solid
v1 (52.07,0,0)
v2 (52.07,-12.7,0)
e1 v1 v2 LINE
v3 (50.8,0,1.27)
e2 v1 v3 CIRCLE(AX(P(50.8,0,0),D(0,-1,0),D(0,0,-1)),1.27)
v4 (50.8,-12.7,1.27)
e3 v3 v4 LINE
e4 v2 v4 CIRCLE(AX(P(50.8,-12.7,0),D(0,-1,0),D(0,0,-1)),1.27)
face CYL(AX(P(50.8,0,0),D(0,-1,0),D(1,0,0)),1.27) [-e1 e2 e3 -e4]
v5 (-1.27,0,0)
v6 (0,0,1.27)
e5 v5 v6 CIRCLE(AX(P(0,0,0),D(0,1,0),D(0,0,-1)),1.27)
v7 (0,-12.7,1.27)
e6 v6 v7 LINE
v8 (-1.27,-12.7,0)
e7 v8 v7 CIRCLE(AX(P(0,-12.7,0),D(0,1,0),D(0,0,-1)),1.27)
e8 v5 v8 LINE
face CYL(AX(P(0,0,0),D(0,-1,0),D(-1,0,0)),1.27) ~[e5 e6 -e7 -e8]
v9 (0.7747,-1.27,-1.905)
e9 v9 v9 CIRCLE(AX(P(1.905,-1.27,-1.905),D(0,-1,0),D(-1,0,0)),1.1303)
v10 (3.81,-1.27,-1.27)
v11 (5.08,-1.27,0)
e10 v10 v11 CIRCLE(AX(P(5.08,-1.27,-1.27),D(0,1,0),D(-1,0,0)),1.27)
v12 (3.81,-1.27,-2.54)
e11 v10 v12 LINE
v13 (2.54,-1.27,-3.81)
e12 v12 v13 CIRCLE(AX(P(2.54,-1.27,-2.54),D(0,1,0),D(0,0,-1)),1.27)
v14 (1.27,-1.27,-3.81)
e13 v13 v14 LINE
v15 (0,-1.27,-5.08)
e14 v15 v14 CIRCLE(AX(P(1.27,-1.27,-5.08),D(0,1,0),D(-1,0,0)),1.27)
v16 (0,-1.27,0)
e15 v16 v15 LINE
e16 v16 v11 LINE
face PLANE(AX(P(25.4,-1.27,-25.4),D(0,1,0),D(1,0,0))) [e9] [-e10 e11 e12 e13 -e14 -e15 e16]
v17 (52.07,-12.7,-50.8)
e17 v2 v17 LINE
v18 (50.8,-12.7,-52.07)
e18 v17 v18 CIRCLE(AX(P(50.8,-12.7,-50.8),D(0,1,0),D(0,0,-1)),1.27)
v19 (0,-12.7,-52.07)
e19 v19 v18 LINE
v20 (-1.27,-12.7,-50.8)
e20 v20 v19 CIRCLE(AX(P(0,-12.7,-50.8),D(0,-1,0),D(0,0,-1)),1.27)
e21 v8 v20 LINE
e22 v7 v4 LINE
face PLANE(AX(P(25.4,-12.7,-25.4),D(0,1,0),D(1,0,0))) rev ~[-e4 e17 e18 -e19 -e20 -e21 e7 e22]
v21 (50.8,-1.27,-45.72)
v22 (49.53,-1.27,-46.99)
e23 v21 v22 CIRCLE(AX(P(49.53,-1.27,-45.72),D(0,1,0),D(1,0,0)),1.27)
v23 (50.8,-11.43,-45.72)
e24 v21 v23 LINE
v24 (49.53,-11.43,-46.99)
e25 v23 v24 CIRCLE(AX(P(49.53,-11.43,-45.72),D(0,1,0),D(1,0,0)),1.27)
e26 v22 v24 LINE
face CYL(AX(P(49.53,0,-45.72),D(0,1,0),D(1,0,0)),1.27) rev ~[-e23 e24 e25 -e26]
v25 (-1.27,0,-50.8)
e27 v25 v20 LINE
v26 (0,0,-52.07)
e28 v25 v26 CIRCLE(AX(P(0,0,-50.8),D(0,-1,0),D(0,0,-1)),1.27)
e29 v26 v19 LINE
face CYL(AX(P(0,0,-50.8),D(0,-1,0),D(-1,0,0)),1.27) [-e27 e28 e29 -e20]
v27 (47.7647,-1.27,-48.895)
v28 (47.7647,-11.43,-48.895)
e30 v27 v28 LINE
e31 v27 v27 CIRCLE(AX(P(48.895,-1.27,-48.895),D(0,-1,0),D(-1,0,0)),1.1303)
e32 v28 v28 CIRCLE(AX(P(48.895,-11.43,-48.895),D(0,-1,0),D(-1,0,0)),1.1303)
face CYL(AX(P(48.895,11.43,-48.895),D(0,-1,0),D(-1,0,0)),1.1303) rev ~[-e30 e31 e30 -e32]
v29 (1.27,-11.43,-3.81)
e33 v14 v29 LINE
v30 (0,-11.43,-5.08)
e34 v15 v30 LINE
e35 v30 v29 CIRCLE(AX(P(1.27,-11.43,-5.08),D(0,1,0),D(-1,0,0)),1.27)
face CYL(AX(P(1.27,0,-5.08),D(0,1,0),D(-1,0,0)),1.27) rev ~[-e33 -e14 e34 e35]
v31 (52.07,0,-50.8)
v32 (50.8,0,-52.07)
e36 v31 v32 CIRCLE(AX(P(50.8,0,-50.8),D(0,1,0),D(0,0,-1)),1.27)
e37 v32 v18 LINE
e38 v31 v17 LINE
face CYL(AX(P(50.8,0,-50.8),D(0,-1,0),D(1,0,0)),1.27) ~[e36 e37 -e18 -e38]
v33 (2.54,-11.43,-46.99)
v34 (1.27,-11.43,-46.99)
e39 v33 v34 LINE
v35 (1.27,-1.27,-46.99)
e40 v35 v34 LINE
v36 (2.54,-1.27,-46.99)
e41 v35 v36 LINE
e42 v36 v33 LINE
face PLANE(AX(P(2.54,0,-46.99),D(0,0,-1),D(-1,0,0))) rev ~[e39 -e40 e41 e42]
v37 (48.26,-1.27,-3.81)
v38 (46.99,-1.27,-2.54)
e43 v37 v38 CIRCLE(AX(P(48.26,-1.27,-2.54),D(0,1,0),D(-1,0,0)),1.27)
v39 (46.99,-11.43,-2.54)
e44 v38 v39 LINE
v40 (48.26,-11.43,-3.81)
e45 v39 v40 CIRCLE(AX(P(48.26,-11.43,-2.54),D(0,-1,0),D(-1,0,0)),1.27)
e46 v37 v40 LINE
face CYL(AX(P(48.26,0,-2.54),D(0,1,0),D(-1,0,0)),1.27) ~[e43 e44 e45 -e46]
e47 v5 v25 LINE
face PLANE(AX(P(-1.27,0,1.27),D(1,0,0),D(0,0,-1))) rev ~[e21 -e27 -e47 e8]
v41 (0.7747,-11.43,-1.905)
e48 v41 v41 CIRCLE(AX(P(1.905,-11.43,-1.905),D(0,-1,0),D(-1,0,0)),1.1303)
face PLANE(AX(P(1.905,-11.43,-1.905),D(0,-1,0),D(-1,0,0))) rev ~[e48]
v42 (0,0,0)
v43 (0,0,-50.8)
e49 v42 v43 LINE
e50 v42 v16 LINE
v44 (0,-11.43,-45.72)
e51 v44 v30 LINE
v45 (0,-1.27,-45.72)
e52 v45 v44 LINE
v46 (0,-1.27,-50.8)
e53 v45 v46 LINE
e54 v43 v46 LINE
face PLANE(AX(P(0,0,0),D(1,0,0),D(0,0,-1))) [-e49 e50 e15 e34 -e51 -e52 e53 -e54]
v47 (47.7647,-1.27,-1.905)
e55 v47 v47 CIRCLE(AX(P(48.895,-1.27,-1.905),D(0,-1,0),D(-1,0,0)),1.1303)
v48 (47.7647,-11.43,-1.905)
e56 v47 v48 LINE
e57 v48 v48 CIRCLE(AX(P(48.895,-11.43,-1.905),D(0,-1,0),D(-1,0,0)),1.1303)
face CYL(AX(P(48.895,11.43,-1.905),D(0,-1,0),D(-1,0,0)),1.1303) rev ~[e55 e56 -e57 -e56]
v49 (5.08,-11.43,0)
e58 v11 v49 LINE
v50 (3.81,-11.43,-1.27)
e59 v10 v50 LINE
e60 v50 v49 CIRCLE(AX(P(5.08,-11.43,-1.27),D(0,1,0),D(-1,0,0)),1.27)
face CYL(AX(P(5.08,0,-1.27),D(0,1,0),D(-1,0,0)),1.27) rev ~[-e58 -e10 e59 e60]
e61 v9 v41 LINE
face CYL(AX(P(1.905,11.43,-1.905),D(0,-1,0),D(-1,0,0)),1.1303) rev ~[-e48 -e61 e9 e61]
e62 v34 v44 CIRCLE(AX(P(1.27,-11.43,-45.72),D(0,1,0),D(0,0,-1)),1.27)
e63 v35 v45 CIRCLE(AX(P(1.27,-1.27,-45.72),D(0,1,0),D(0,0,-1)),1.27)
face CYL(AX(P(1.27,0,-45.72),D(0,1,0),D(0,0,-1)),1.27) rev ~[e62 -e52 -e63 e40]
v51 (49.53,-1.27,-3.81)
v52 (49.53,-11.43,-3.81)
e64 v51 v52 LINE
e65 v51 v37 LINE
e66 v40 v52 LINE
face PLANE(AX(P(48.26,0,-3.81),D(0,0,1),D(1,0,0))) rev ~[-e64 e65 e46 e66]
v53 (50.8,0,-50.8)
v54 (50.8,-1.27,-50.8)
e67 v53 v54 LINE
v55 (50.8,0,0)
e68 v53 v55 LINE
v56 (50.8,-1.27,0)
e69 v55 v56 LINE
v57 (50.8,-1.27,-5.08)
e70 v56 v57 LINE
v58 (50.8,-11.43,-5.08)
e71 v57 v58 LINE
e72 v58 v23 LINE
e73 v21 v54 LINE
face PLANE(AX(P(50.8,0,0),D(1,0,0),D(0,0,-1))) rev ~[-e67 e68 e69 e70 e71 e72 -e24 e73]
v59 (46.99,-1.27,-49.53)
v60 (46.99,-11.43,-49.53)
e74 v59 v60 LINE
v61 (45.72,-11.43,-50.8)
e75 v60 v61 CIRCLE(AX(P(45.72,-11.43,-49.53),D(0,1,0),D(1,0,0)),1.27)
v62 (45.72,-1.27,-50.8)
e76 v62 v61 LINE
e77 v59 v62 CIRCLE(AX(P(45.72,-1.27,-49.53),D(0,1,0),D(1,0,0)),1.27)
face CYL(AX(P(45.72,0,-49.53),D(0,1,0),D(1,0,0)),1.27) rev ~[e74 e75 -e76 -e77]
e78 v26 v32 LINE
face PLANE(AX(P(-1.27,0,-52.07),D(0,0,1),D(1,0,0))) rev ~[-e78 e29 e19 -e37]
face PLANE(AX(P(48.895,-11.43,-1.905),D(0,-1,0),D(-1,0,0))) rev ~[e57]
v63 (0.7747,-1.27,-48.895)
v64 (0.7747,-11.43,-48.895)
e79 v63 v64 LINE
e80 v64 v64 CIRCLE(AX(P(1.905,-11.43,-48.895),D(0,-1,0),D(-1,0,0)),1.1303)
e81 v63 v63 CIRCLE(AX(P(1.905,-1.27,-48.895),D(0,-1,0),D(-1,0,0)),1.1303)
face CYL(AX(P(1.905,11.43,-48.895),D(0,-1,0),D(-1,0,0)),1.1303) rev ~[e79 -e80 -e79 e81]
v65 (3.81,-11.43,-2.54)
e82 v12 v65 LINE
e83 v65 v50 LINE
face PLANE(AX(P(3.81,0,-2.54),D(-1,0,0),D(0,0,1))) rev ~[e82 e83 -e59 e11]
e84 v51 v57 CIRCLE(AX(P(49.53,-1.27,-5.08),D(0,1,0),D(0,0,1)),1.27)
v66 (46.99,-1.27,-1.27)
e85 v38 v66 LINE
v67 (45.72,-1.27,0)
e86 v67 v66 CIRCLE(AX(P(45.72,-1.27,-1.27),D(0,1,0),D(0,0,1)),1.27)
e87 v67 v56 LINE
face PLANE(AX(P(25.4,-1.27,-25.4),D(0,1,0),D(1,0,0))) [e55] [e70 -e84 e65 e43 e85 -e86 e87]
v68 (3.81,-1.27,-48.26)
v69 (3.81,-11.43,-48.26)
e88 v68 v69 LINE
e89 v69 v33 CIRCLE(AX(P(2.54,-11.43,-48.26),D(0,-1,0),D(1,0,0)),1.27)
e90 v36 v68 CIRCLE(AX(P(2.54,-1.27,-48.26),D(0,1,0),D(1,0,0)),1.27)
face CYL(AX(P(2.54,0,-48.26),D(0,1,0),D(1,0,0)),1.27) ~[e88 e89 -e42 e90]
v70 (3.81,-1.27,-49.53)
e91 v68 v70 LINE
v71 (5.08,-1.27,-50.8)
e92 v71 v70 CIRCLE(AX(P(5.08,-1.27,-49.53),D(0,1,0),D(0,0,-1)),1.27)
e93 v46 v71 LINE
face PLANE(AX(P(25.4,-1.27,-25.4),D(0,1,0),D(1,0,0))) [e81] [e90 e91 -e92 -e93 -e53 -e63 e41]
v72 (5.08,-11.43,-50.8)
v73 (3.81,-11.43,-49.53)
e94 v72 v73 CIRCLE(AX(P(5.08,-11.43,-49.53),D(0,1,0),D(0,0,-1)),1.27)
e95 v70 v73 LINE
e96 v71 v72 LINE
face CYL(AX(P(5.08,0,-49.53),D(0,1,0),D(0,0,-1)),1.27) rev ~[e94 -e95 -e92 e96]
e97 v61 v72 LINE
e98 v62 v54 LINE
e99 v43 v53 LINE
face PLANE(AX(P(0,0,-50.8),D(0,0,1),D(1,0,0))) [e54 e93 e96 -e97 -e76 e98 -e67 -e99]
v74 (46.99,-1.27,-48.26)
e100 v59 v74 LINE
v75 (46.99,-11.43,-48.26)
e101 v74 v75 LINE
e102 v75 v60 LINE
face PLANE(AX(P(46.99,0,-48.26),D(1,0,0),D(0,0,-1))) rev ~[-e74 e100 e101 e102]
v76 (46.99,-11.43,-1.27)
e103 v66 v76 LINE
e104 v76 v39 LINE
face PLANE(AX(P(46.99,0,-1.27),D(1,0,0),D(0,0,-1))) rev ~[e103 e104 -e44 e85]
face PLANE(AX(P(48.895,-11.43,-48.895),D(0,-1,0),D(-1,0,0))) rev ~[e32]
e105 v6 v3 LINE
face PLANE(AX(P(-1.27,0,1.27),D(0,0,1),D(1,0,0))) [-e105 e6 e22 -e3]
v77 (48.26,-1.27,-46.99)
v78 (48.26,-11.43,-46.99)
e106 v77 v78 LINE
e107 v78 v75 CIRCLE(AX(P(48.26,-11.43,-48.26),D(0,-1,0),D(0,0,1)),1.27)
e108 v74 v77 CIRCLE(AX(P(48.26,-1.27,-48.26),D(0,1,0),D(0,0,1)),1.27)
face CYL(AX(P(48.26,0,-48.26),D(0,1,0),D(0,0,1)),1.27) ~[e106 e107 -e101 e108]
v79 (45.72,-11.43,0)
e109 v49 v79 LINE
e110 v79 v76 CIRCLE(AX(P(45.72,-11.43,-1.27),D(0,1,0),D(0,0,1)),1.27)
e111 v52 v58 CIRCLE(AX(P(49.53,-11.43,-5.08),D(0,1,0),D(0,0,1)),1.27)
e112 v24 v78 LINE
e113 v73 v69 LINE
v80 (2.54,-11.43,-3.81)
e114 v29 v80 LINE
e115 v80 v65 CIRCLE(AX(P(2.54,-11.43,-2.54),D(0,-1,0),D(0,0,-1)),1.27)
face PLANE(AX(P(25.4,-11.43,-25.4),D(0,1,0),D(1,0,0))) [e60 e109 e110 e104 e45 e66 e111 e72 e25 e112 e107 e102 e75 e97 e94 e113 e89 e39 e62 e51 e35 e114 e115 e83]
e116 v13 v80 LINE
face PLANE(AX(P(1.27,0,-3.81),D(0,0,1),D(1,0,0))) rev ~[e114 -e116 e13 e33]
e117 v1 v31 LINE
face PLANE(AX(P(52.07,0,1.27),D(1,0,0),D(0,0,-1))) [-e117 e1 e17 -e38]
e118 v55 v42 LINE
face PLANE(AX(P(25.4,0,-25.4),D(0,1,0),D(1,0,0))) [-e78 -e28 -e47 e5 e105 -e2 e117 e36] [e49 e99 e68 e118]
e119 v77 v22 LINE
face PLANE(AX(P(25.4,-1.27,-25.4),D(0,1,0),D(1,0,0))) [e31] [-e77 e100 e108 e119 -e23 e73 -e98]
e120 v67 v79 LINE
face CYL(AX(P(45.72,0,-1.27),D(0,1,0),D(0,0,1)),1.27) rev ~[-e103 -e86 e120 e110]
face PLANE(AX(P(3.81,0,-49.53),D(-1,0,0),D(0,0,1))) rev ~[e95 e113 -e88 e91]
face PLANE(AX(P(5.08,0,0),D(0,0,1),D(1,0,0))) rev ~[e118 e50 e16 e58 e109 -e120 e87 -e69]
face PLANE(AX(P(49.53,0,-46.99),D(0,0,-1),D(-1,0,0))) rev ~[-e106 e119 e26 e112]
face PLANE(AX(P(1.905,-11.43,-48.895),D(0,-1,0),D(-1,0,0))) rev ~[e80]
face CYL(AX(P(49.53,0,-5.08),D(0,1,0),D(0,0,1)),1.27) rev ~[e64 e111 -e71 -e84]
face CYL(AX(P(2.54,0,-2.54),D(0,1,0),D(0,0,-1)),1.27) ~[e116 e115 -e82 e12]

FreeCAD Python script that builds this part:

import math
import FreeCAD as App
import Part
import Sketcher

V = App.Vector
Q = App.Units.Quantity


def edges_at(feature, points):
    """Names of the edges that pass closest to the given points."""
    edges = feature.Shape.Edges
    near = lambda p: min(range(len(edges)), key=lambda i: edges[i].distToShape(Part.Vertex(*p))[0])
    return sorted({f"Edge{near(p) + 1}" for p in points})


def add_polygon(sketch, points):
    """Adds a closed chain of lines whose ends are joined by coincident constraints."""
    first, n = sketch.GeometryCount, len(points)
    for a, b in zip(points, points[1:] + points[:1]):
        sketch.addGeometry(Part.LineSegment(App.Vector(*a, 0), App.Vector(*b, 0)), False)
    for i in range(n):
        sketch.addConstraint(Sketcher.Constraint("Coincident", first + i, 2, first + (i + 1) % n, 1))

doc = App.newDocument("Part")
body = doc.addObject("PartDesign::Body", "Body")

sketch1 = body.newObject("Sketcher::SketchObject", "Sketch")
sketch1.AttachmentSupport = (doc.getObject("XZ_Plane"), [""])
sketch1.MapMode = "FlatFace"
add_polygon(sketch1, [(-1.27, -52.07), (-1.27, 1.27), (52.07, 1.27), (52.07, -52.07)])
sketch1.addConstraint([
    Sketcher.Constraint("Vertical", 0),
    Sketcher.Constraint("Horizontal", 1),
    Sketcher.Constraint("Vertical", 2),
    Sketcher.Constraint("Horizontal", 3),
    Sketcher.Constraint("Equal", 3, 0),
    Sketcher.Constraint("DistanceX", 1, 1, 1, 2, Q("2.1 in")),
    Sketcher.Constraint("DistanceX", 0, 2, -1, 1, Q("0.05 in")),
    Sketcher.Constraint("DistanceY", -1, 1, 0, 2, Q("0.05 in")),
])
pad1 = body.newObject("PartDesign::Pad", "Pad")
pad1.Profile = sketch1
pad1.Length = Q("0.5 in")

sketch2 = body.newObject("Sketcher::SketchObject", "Sketch001")
sketch2.AttachmentSupport = (doc.getObject("XZ_Plane"), [""])
sketch2.MapMode = "FlatFace"
sketch2.addGeometry([
    Part.LineSegment(V(5.08, 0, 0), V(45.72, 0, 0)),
    Part.ArcOfCircle(Part.Circle(V(45.72, -1.27, 0), V(0, 0, 1), 1.27), math.radians(0), math.radians(90)),
    Part.LineSegment(V(46.99, -1.27, 0), V(46.99, -2.54, 0)),
    Part.ArcOfCircle(Part.Circle(V(48.26, -2.54, 0), V(0, 0, 1), 1.27), math.radians(180), math.radians(270)),
    Part.LineSegment(V(48.26, -3.81, 0), V(49.53, -3.81, 0)),
    Part.ArcOfCircle(Part.Circle(V(49.53, -5.08, 0), V(0, 0, 1), 1.27), math.radians(0), math.radians(90)),
    Part.LineSegment(V(50.8, -5.08, 0), V(50.8, -45.72, 0)),
    Part.ArcOfCircle(Part.Circle(V(49.53, -45.72, 0), V(0, 0, 1), 1.27), math.radians(-90), math.radians(0)),
    Part.LineSegment(V(49.53, -46.99, 0), V(48.26, -46.99, 0)),
    Part.ArcOfCircle(Part.Circle(V(48.26, -48.26, 0), V(0, 0, 1), 1.27), math.radians(90), math.radians(180)),
    Part.LineSegment(V(46.99, -48.26, 0), V(46.99, -49.53, 0)),
    Part.ArcOfCircle(Part.Circle(V(45.72, -49.53, 0), V(0, 0, 1), 1.27), math.radians(-90), math.radians(0)),
    Part.LineSegment(V(45.72, -50.8, 0), V(5.08, -50.8, 0)),
    Part.ArcOfCircle(Part.Circle(V(5.08, -49.53, 0), V(0, 0, 1), 1.27), math.radians(180), math.radians(270)),
    Part.LineSegment(V(3.81, -49.53, 0), V(3.81, -48.26, 0)),
    Part.ArcOfCircle(Part.Circle(V(2.54, -48.26, 0), V(0, 0, 1), 1.27), math.radians(0), math.radians(90)),
    Part.LineSegment(V(2.54, -46.99, 0), V(1.27, -46.99, 0)),
    Part.ArcOfCircle(Part.Circle(V(1.27, -45.72, 0), V(0, 0, 1), 1.27), math.radians(180), math.radians(270)),
    Part.LineSegment(V(0, -45.72, 0), V(0, -5.08, 0)),
    Part.ArcOfCircle(Part.Circle(V(1.27, -5.08, 0), V(0, 0, 1), 1.27), math.radians(90), math.radians(180)),
    Part.LineSegment(V(1.27, -3.81, 0), V(2.54, -3.81, 0)),
    Part.ArcOfCircle(Part.Circle(V(2.54, -2.54, 0), V(0, 0, 1), 1.27), math.radians(-90), math.radians(0)),
    Part.LineSegment(V(3.81, -2.54, 0), V(3.81, -1.27, 0)),
    Part.ArcOfCircle(Part.Circle(V(5.08, -1.27, 0), V(0, 0, 1), 1.27), math.radians(90), math.radians(180)),
], False)
sketch2.addConstraint([
    Sketcher.Constraint("Tangent", 0, 2, 1, 2),
    Sketcher.Constraint("Tangent", 1, 1, 2, 1),
    Sketcher.Constraint("Tangent", 2, 2, 3, 1),
    Sketcher.Constraint("Tangent", 3, 2, 4, 1),
    Sketcher.Constraint("Tangent", 4, 2, 5, 2),
    Sketcher.Constraint("Tangent", 5, 1, 6, 1),
    Sketcher.Constraint("Tangent", 6, 2, 7, 2),
    Sketcher.Constraint("Tangent", 7, 1, 8, 1),
    Sketcher.Constraint("Tangent", 8, 2, 9, 1),
    Sketcher.Constraint("Tangent", 9, 2, 10, 1),
    Sketcher.Constraint("Tangent", 10, 2, 11, 2),
    Sketcher.Constraint("Tangent", 11, 1, 12, 1),
    Sketcher.Constraint("Tangent", 12, 2, 13, 2),
    Sketcher.Constraint("Tangent", 13, 1, 14, 1),
    Sketcher.Constraint("Tangent", 14, 2, 15, 1),
    Sketcher.Constraint("Tangent", 15, 2, 16, 1),
    Sketcher.Constraint("Tangent", 16, 2, 17, 2),
    Sketcher.Constraint("Tangent", 17, 1, 18, 1),
    Sketcher.Constraint("Tangent", 18, 2, 19, 2),
    Sketcher.Constraint("Tangent", 19, 1, 20, 1),
    Sketcher.Constraint("Tangent", 20, 2, 21, 1),
    Sketcher.Constraint("Tangent", 21, 2, 22, 1),
    Sketcher.Constraint("Tangent", 22, 2, 23, 2),
    Sketcher.Constraint("Tangent", 23, 1, 0, 1),
    Sketcher.Constraint("Horizontal", 0),
    Sketcher.Constraint("Vertical", 2),
    Sketcher.Constraint("Horizontal", 4),
    Sketcher.Constraint("Vertical", 6),
    Sketcher.Constraint("Horizontal", 8),
    Sketcher.Constraint("Vertical", 10),
    Sketcher.Constraint("Horizontal", 12),
    Sketcher.Constraint("Vertical", 14),
    Sketcher.Constraint("Horizontal", 16),
    Sketcher.Constraint("Vertical", 18),
    Sketcher.Constraint("Horizontal", 20),
    Sketcher.Constraint("Vertical", 22),
    Sketcher.Constraint("Equal", 1, 3),
    Sketcher.Constraint("Equal", 3, 5),
    Sketcher.Constraint("Equal", 5, 7),
    Sketcher.Constraint("Equal", 7, 9),
    Sketcher.Constraint("Equal", 9, 11),
    Sketcher.Constraint("Equal", 11, 13),
    Sketcher.Constraint("Equal", 13, 15),
    Sketcher.Constraint("Equal", 15, 17),
    Sketcher.Constraint("Equal", 17, 19),
    Sketcher.Constraint("Equal", 19, 21),
    Sketcher.Constraint("Equal", 21, 23),
    Sketcher.Constraint("PointOnObject", 0, 2, -1),
    Sketcher.Constraint("PointOnObject", 17, 1, -2),
    Sketcher.Constraint("Horizontal", 9, 3, 15, 3),
    Sketcher.Constraint("Horizontal", 5, 3, 19, 3),
    Sketcher.Constraint("Vertical", 3, 3, 9, 3),
    Sketcher.Constraint("Vertical", 15, 3, 21, 3),
    Sketcher.Constraint("Equal", 8, 16),
    Sketcher.Constraint("Equal", 20, 2),
    Sketcher.Constraint("Equal", 12, 6),
    Sketcher.Constraint("Equal", 2, 10),
    Sketcher.Constraint("Radius", 1, Q("0.05 in")),
    Sketcher.Constraint("DistanceX", 0, 1, 0, 2, Q("1.6 in")),
    Sketcher.Constraint("DistanceX", -1, 1, 5, 1, Q("2 in")),
])
pocket1 = body.newObject("PartDesign::Pocket", "Pocket")
pocket1.Profile = sketch2
pocket1.Length = Q("0.45 in")
pocket1.Reversed = True

sketch3 = body.newObject("Sketcher::SketchObject", "Sketch002")
sketch3.AttachmentSupport = (doc.getObject("XZ_Plane"), [""])
sketch3.MapMode = "FlatFace"
sketch3.addGeometry([
    Part.Circle(V(1.905, -48.895, 0), V(0, 0, 1), 1.1303),
    Part.Circle(V(48.895, -48.895, 0), V(0, 0, 1), 1.1303),
    Part.Circle(V(1.905, -1.905, 0), V(0, 0, 1), 1.1303),
    Part.Circle(V(48.895, -1.905, 0), V(0, 0, 1), 1.1303),
], False)
sketch3.addConstraint([
    Sketcher.Constraint("Equal", 0, 1),
    Sketcher.Constraint("Equal", 1, 2),
    Sketcher.Constraint("Equal", 2, 3),
    Sketcher.Constraint("Horizontal", 0, 3, 1, 3),
    Sketcher.Constraint("Horizontal", 2, 3, 3, 3),
    Sketcher.Constraint("Vertical", 0, 3, 2, 3),
    Sketcher.Constraint("Vertical", 1, 3, 3, 3),
    Sketcher.Constraint("Diameter", 0, Q("0.089 in")),
    Sketcher.Constraint("DistanceX", 0, 3, 1, 3, Q("1.85 in")),
    Sketcher.Constraint("DistanceY", 0, 3, 2, 3, Q("1.85 in")),
    Sketcher.Constraint("DistanceX", -1, 1, 0, 3, Q("0.075 in")),
    Sketcher.Constraint("DistanceY", 0, 3, -1, 1, Q("1.925 in")),
])
doc.recompute()
hole = body.newObject("PartDesign::Hole", "Hole")
hole.Profile = sketch3
hole.ThreadType = "None"
hole.Diameter = Q("0.089 in")
hole.DepthType = "Dimension"
hole.Depth = Q("0.45 in")
hole.DrillPoint = "Flat"
hole.Reversed = True

sketch4 = body.newObject("Sketcher::SketchObject", "Sketch003")
sketch4.AttachmentSupport = (doc.getObject("XZ_Plane"), [""])
sketch4.MapMode = "FlatFace"
add_polygon(sketch4, [(0, -50.8), (0, 0), (50.8, 0), (50.8, -50.8)])
sketch4.addConstraint([
    Sketcher.Constraint("Vertical", 0),
    Sketcher.Constraint("Horizontal", 1),
    Sketcher.Constraint("Vertical", 2),
    Sketcher.Constraint("Horizontal", 3),
    Sketcher.Constraint("Coincident", 0, 2, -1, 1),
    Sketcher.Constraint("Equal", 3, 0),
    Sketcher.Constraint("DistanceX", 1, 1, 1, 2, Q("2 in")),
])
pocket2 = body.newObject("PartDesign::Pocket", "Pocket001")
pocket2.Profile = sketch4
pocket2.Length = Q("0.05 in")
pocket2.Reversed = True
doc.recompute()

fillet = body.newObject("PartDesign::Fillet", "Fillet")
fillet.Base = (pocket2, edges_at(pocket2, [
    (-1.27, -6.35, -52.07),
    (52.07, -6.35, -52.07),
    (52.07, -6.35, 1.27),
    (-1.27, -6.35, 1.27),
]))
fillet.Radius = Q("0.05 in")

doc.recompute()
